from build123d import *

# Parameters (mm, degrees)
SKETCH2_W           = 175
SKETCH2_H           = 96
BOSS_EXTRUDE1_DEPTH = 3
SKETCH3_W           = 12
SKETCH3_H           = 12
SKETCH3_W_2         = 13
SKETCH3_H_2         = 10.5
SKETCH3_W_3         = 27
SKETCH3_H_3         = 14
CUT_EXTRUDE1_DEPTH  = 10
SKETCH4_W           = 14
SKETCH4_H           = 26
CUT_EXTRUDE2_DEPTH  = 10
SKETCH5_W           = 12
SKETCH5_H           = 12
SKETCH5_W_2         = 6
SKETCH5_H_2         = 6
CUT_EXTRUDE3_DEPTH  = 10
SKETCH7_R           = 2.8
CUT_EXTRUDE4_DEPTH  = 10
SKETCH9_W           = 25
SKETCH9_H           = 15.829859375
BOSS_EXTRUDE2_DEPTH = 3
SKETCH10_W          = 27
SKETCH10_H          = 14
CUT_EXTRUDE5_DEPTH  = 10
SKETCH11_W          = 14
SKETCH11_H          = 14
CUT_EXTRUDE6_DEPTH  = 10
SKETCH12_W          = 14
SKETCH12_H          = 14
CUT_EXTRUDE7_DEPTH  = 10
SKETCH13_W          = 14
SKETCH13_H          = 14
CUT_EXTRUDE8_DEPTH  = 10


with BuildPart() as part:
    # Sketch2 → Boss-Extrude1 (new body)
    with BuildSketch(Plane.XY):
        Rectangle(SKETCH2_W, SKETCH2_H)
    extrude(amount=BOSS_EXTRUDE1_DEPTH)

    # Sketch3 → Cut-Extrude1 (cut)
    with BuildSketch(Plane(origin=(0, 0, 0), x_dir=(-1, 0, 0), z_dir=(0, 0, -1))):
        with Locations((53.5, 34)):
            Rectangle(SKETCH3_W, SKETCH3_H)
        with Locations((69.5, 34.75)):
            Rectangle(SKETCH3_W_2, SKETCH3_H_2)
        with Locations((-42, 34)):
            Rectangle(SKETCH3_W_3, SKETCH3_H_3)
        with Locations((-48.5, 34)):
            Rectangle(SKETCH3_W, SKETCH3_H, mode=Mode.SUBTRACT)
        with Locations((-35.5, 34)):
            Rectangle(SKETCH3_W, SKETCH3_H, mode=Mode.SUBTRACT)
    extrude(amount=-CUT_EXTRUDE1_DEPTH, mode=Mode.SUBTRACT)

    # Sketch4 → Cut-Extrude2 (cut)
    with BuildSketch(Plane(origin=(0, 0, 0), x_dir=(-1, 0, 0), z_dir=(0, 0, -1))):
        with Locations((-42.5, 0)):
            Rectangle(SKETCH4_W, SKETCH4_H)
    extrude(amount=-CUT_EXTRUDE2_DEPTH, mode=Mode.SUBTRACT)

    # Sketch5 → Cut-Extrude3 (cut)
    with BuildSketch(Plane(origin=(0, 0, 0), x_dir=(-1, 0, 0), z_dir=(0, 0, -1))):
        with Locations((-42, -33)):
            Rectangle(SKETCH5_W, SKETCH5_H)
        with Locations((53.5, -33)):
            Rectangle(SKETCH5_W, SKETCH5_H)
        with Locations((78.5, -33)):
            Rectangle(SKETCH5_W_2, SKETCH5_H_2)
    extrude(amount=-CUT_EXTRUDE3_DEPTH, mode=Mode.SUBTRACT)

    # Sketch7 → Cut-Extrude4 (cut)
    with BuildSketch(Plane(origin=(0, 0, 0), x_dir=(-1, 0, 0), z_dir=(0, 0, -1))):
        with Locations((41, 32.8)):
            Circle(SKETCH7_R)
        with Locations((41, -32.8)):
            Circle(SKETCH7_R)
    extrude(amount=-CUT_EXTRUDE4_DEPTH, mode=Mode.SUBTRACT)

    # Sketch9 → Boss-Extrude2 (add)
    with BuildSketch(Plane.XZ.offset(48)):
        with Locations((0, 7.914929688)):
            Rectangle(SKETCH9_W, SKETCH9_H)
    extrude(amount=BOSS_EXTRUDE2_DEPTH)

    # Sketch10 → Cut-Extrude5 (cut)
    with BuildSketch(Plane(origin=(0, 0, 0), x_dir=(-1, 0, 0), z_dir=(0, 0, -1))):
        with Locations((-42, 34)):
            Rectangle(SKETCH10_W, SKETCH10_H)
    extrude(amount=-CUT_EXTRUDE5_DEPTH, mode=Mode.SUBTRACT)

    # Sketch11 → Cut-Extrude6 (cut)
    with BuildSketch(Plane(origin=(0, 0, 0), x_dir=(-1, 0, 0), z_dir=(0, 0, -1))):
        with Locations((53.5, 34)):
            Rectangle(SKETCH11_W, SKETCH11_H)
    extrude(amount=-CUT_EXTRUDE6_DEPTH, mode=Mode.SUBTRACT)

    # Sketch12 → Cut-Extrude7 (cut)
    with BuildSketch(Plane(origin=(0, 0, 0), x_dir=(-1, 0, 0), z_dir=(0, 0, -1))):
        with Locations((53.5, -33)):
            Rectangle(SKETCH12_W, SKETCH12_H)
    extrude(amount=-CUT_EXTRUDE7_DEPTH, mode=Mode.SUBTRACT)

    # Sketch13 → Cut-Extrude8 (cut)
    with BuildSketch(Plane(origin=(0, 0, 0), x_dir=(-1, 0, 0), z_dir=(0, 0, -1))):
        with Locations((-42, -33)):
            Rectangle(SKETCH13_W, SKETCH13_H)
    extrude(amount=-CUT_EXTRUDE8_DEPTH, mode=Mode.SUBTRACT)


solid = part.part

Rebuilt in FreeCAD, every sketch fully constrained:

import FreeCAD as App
import Part
import Sketcher
Q = App.Units.Quantity

doc = App.newDocument("Part")
params = doc.addObject("Spreadsheet::Sheet", "Params")
for row, (alias, value) in enumerate([
    ("sketch1_width", "175 mm"),
    ("sketch1_height", "96 mm"),
    ("pad1_length", "3 mm"),
    ("sketch2_width", "12 mm"),
    ("sketch2_width2", "13 mm"),
    ("sketch2_width3", "27 mm"),
    ("sketch2_height", "14 mm"),
    ("sketch2_height2", "10.5 mm"),
    ("pocket1_length", "10 mm"),
    ("sketch3_width", "14 mm"),
    ("sketch3_height", "26 mm"),
    ("pocket2_length", "10 mm"),
    ("sketch4_width", "12 mm"),
    ("sketch4_width2", "6 mm"),
    ("pocket3_length", "10 mm"),
    ("sketch5_diameter", "5.6 mm"),
    ("pocket4_length", "10 mm"),
    ("sketch6_width", "25 mm"),
    ("pad2_length", "3 mm"),
    ("sketch7_width", "27 mm"),
    ("sketch7_height", "14 mm"),
    ("pocket5_length", "10 mm"),
    ("sketch8_width", "14 mm"),
    ("pocket6_length", "10 mm"),
    ("sketch9_width", "14 mm"),
    ("pocket7_length", "10 mm"),
    ("sketch10_width", "14 mm"),
    ("pocket8_length", "10 mm"),
], start=1):
    params.set(f"A{row}", alias)
    params.set(f"B{row}", "=" + value)
    params.setAlias(f"B{row}", alias)

body = doc.addObject("PartDesign::Body", "Body")
body.AllowCompound = True

# Sketch on XY plane
sketch1 = body.newObject("Sketcher::SketchObject", "Sketch")
sketch1.AttachmentSupport = (doc.getObject("XY_Plane"), [""])
sketch1.MapMode = "FlatFace"
sketch1.addGeometry(Part.LineSegment(App.Vector(-88, 48, 0), App.Vector(-88, -48, 0)), False)
sketch1.addGeometry(Part.LineSegment(App.Vector(-88, -48, 0), App.Vector(88, -48, 0)), False)
sketch1.addGeometry(Part.LineSegment(App.Vector(88, -48, 0), App.Vector(88, 48, 0)), False)
sketch1.addGeometry(Part.LineSegment(App.Vector(88, 48, 0), App.Vector(-88, 48, 0)), False)
sketch1.addConstraint(Sketcher.Constraint("Coincident", 0, 2, 1, 1))
sketch1.addConstraint(Sketcher.Constraint("Coincident", 1, 2, 2, 1))
sketch1.addConstraint(Sketcher.Constraint("Coincident", 2, 2, 3, 1))
sketch1.addConstraint(Sketcher.Constraint("Coincident", 3, 2, 0, 1))
sketch1.addConstraint(Sketcher.Constraint("Vertical", 0))
sketch1.addConstraint(Sketcher.Constraint("Horizontal", 1))
sketch1.addConstraint(Sketcher.Constraint("Vertical", 2))
sketch1.addConstraint(Sketcher.Constraint("Horizontal", 3))
sketch1.addConstraint(Sketcher.Constraint("Symmetric", 0, 2, 2, 2, -1, 1))
sketch1.addConstraint(Sketcher.Constraint("DistanceX", 1, 1, 1, 2, Q("175 mm")))
sketch1.addConstraint(Sketcher.Constraint("DistanceY", 0, 2, 0, 1, Q("96 mm")))
sketch1.setExpression("Constraints[9]", "Params.sketch1_width")
sketch1.setExpression("Constraints[10]", "Params.sketch1_height")
pad1 = body.newObject("PartDesign::Pad", "Pad")
pad1.Profile = sketch1
pad1.setExpression("Length", "Params.pad1_length")

# Sketch on XY plane
sketch2 = body.newObject("Sketcher::SketchObject", "Sketch001")
sketch2.AttachmentSupport = (doc.getObject("XY_Plane"), [""])
sketch2.MapMode = "FlatFace"
sketch2.addGeometry(Part.LineSegment(App.Vector(-48, 40, 0), App.Vector(-48, 28, 0)), False)
sketch2.addGeometry(Part.LineSegment(App.Vector(-48, 28, 0), App.Vector(-60, 28, 0)), False)
sketch2.addGeometry(Part.LineSegment(App.Vector(-60, 28, 0), App.Vector(-60, 40, 0)), False)
sketch2.addGeometry(Part.LineSegment(App.Vector(-60, 40, 0), App.Vector(-48, 40, 0)), False)
sketch2.addGeometry(Part.LineSegment(App.Vector(-63, 40, 0), App.Vector(-63, 30, 0)), False)
sketch2.addGeometry(Part.LineSegment(App.Vector(-63, 30, 0), App.Vector(-76, 30, 0)), False)
sketch2.addGeometry(Part.LineSegment(App.Vector(-76, 30, 0), App.Vector(-76, 40, 0)), False)
sketch2.addGeometry(Part.LineSegment(App.Vector(-76, 40, 0), App.Vector(-63, 40, 0)), False)
sketch2.addGeometry(Part.LineSegment(App.Vector(56, 41, 0), App.Vector(56, 27, 0)), False)
sketch2.addGeometry(Part.LineSegment(App.Vector(56, 27, 0), App.Vector(28, 27, 0)), False)
sketch2.addGeometry(Part.LineSegment(App.Vector(28, 27, 0), App.Vector(28, 41, 0)), False)
sketch2.addGeometry(Part.LineSegment(App.Vector(28, 41, 0), App.Vector(56, 41, 0)), False)
sketch2.addGeometry(Part.LineSegment(App.Vector(42, 28, 0), App.Vector(54, 28, 0)), False)
sketch2.addGeometry(Part.LineSegment(App.Vector(54, 28, 0), App.Vector(54, 40, 0)), False)
sketch2.addGeometry(Part.LineSegment(App.Vector(54, 40, 0), App.Vector(42, 40, 0)), False)
sketch2.addGeometry(Part.LineSegment(App.Vector(42, 40, 0), App.Vector(42, 28, 0)), False)
sketch2.addGeometry(Part.LineSegment(App.Vector(30, 28, 0), App.Vector(42, 28, 0)), False)
sketch2.addGeometry(Part.LineSegment(App.Vector(42, 28, 0), App.Vector(42, 40, 0)), False)
sketch2.addGeometry(Part.LineSegment(App.Vector(42, 40, 0), App.Vector(30, 40, 0)), False)
sketch2.addGeometry(Part.LineSegment(App.Vector(30, 40, 0), App.Vector(30, 28, 0)), False)
sketch2.addConstraint(Sketcher.Constraint("Coincident", 0, 2, 1, 1))
sketch2.addConstraint(Sketcher.Constraint("Coincident", 1, 2, 2, 1))
sketch2.addConstraint(Sketcher.Constraint("Coincident", 2, 2, 3, 1))
sketch2.addConstraint(Sketcher.Constraint("Coincident", 3, 2, 0, 1))
sketch2.addConstraint(Sketcher.Constraint("Coincident", 4, 2, 5, 1))
sketch2.addConstraint(Sketcher.Constraint("Coincident", 5, 2, 6, 1))
sketch2.addConstraint(Sketcher.Constraint("Coincident", 6, 2, 7, 1))
sketch2.addConstraint(Sketcher.Constraint("Coincident", 7, 2, 4, 1))
sketch2.addConstraint(Sketcher.Constraint("Coincident", 8, 2, 9, 1))
sketch2.addConstraint(Sketcher.Constraint("Coincident", 9, 2, 10, 1))
sketch2.addConstraint(Sketcher.Constraint("Coincident", 10, 2, 11, 1))
sketch2.addConstraint(Sketcher.Constraint("Coincident", 11, 2, 8, 1))
sketch2.addConstraint(Sketcher.Constraint("Coincident", 12, 2, 13, 1))
sketch2.addConstraint(Sketcher.Constraint("Coincident", 13, 2, 14, 1))
sketch2.addConstraint(Sketcher.Constraint("Coincident", 14, 2, 15, 1))
sketch2.addConstraint(Sketcher.Constraint("Coincident", 15, 2, 12, 1))
sketch2.addConstraint(Sketcher.Constraint("Coincident", 16, 2, 17, 1))
sketch2.addConstraint(Sketcher.Constraint("Coincident", 17, 2, 18, 1))
sketch2.addConstraint(Sketcher.Constraint("Coincident", 18, 2, 19, 1))
sketch2.addConstraint(Sketcher.Constraint("Coincident", 19, 2, 16, 1))
sketch2.addConstraint(Sketcher.Constraint("Vertical", 0))
sketch2.addConstraint(Sketcher.Constraint("Horizontal", 1))
sketch2.addConstraint(Sketcher.Constraint("Vertical", 2))
sketch2.addConstraint(Sketcher.Constraint("Horizontal", 3))
sketch2.addConstraint(Sketcher.Constraint("Vertical", 4))
sketch2.addConstraint(Sketcher.Constraint("Horizontal", 5))
sketch2.addConstraint(Sketcher.Constraint("Vertical", 6))
sketch2.addConstraint(Sketcher.Constraint("Horizontal", 7))
sketch2.addConstraint(Sketcher.Constraint("Vertical", 8))
sketch2.addConstraint(Sketcher.Constraint("Horizontal", 9))
sketch2.addConstraint(Sketcher.Constraint("Vertical", 10))
sketch2.addConstraint(Sketcher.Constraint("Horizontal", 11))
sketch2.addConstraint(Sketcher.Constraint("Horizontal", 12))
sketch2.addConstraint(Sketcher.Constraint("Vertical", 13))
sketch2.addConstraint(Sketcher.Constraint("Horizontal", 14))
sketch2.addConstraint(Sketcher.Constraint("Vertical", 15))
sketch2.addConstraint(Sketcher.Constraint("Horizontal", 16))
sketch2.addConstraint(Sketcher.Constraint("Vertical", 17))
sketch2.addConstraint(Sketcher.Constraint("Horizontal", 18))
sketch2.addConstraint(Sketcher.Constraint("Vertical", 19))
sketch2.addConstraint(Sketcher.Constraint("Horizontal", 3, 2, 6, 2))
sketch2.addConstraint(Sketcher.Constraint("Horizontal", 1, 2, 12, 2))
sketch2.addConstraint(Sketcher.Constraint("Horizontal", 7, 2, 13, 2))
sketch2.addConstraint(Sketcher.Constraint("Horizontal", 15, 2, 16, 2))
sketch2.addConstraint(Sketcher.Constraint("Horizontal", 14, 2, 17, 2))
sketch2.addConstraint(Sketcher.Constraint("Equal", 3, 12))
sketch2.addConstraint(Sketcher.Constraint("Equal", 14, 16))
sketch2.addConstraint(Sketcher.Constraint("Equal", 18, 0))
sketch2.addConstraint(Sketcher.Constraint("DistanceX", 1, 2, 1, 1, Q("12 mm")))
sketch2.addConstraint(Sketcher.Constraint("DistanceX", 5, 2, 5, 1, Q("13 mm")))
sketch2.addConstraint(Sketcher.Constraint("DistanceX", 9, 2, 9, 1, Q("27 mm")))
sketch2.addConstraint(Sketcher.Constraint("DistanceY", 8, 2, 8, 1, Q("14 mm")))
sketch2.addConstraint(Sketcher.Constraint("DistanceY", 4, 2, 4, 1, Q("10.5 mm")))
sketch2.addConstraint(Sketcher.Constraint("DistanceY", -1, 1, 0, 2, Q("28 mm")))
sketch2.addConstraint(Sketcher.Constraint("DistanceX", 4, 2, -1, 1, Q("63 mm")))
sketch2.addConstraint(Sketcher.Constraint("DistanceY", -1, 1, 8, 2, Q("27 mm")))
sketch2.addConstraint(Sketcher.Constraint("DistanceX", 0, 2, 8, 2, Q("103 mm")))
sketch2.addConstraint(Sketcher.Constraint("DistanceX", 12, 2, 8, 2, Q("1 mm")))
sketch2.addConstraint(Sketcher.Constraint("DistanceX", 16, 2, 15, 2, Q("1 mm")))
sketch2.addConstraint(Sketcher.Constraint("DistanceX", 0, 2, -1, 1, Q("47.5 mm")))
sketch2.setExpression("Constraints[48]", "Params.sketch2_width")
sketch2.setExpression("Constraints[49]", "Params.sketch2_width2")
sketch2.setExpression("Constraints[50]", "Params.sketch2_width3")
sketch2.setExpression("Constraints[51]", "Params.sketch2_height")
sketch2.setExpression("Constraints[52]", "Params.sketch2_height2")
pocket1 = body.newObject("PartDesign::Pocket", "Pocket")
pocket1.Profile = sketch2
pocket1.setExpression("Length", "Params.pocket1_length")
pocket1.Reversed = True

# Sketch on XY plane
sketch3 = body.newObject("Sketcher::SketchObject", "Sketch002")
sketch3.AttachmentSupport = (doc.getObject("XY_Plane"), [""])
sketch3.MapMode = "FlatFace"
sketch3.addGeometry(Part.LineSegment(App.Vector(50, 13, 0), App.Vector(50, -13, 0)), False)
sketch3.addGeometry(Part.LineSegment(App.Vector(50, -13, 0), App.Vector(36, -13, 0)), False)
sketch3.addGeometry(Part.LineSegment(App.Vector(36, -13, 0), App.Vector(36, 13, 0)), False)
sketch3.addGeometry(Part.LineSegment(App.Vector(36, 13, 0), App.Vector(50, 13, 0)), False)
sketch3.addConstraint(Sketcher.Constraint("Coincident", 0, 2, 1, 1))
sketch3.addConstraint(Sketcher.Constraint("Coincident", 1, 2, 2, 1))
sketch3.addConstraint(Sketcher.Constraint("Coincident", 2, 2, 3, 1))
sketch3.addConstraint(Sketcher.Constraint("Coincident", 3, 2, 0, 1))
sketch3.addConstraint(Sketcher.Constraint("Vertical", 0))
sketch3.addConstraint(Sketcher.Constraint("Horizontal", 1))
sketch3.addConstraint(Sketcher.Constraint("Vertical", 2))
sketch3.addConstraint(Sketcher.Constraint("Horizontal", 3))
sketch3.addConstraint(Sketcher.Constraint("DistanceX", 1, 2, 1, 1, Q("14 mm")))
sketch3.addConstraint(Sketcher.Constraint("DistanceY", 0, 2, 0, 1, Q("26 mm")))
sketch3.addConstraint(Sketcher.Constraint("DistanceY", 0, 2, -1, 1, Q("13 mm")))
sketch3.addConstraint(Sketcher.Constraint("DistanceX", -1, 1, 0, 2, Q("49.5 mm")))
sketch3.setExpression("Constraints[8]", "Params.sketch3_width")
sketch3.setExpression("Constraints[9]", "Params.sketch3_height")
pocket2 = body.newObject("PartDesign::Pocket", "Pocket001")
pocket2.Profile = sketch3
pocket2.setExpression("Length", "Params.pocket2_length")
pocket2.Reversed = True

# Sketch on XY plane
sketch4 = body.newObject("Sketcher::SketchObject", "Sketch003")
sketch4.AttachmentSupport = (doc.getObject("XY_Plane"), [""])
sketch4.MapMode = "FlatFace"
sketch4.addGeometry(Part.LineSegment(App.Vector(48, -27, 0), App.Vector(48, -39, 0)), False)
sketch4.addGeometry(Part.LineSegment(App.Vector(48, -39, 0), App.Vector(36, -39, 0)), False)
sketch4.addGeometry(Part.LineSegment(App.Vector(36, -39, 0), App.Vector(36, -27, 0)), False)
sketch4.addGeometry(Part.LineSegment(App.Vector(36, -27, 0), App.Vector(48, -27, 0)), False)
sketch4.addGeometry(Part.LineSegment(App.Vector(-48, -27, 0), App.Vector(-48, -39, 0)), False)
sketch4.addGeometry(Part.LineSegment(App.Vector(-48, -39, 0), App.Vector(-60, -39, 0)), False)
sketch4.addGeometry(Part.LineSegment(App.Vector(-60, -39, 0), App.Vector(-60, -27, 0)), False)
sketch4.addGeometry(Part.LineSegment(App.Vector(-60, -27, 0), App.Vector(-48, -27, 0)), False)
sketch4.addGeometry(Part.LineSegment(App.Vector(-76, -30, 0), App.Vector(-76, -36, 0)), False)
sketch4.addGeometry(Part.LineSegment(App.Vector(-76, -36, 0), App.Vector(-82, -36, 0)), False)
sketch4.addGeometry(Part.LineSegment(App.Vector(-82, -36, 0), App.Vector(-82, -30, 0)), False)
sketch4.addGeometry(Part.LineSegment(App.Vector(-82, -30, 0), App.Vector(-76, -30, 0)), False)
sketch4.addConstraint(Sketcher.Constraint("Coincident", 0, 2, 1, 1))
sketch4.addConstraint(Sketcher.Constraint("Coincident", 1, 2, 2, 1))
sketch4.addConstraint(Sketcher.Constraint("Coincident", 2, 2, 3, 1))
sketch4.addConstraint(Sketcher.Constraint("Coincident", 3, 2, 0, 1))
sketch4.addConstraint(Sketcher.Constraint("Coincident", 4, 2, 5, 1))
sketch4.addConstraint(Sketcher.Constraint("Coincident", 5, 2, 6, 1))
sketch4.addConstraint(Sketcher.Constraint("Coincident", 6, 2, 7, 1))
sketch4.addConstraint(Sketcher.Constraint("Coincident", 7, 2, 4, 1))
sketch4.addConstraint(Sketcher.Constraint("Coincident", 8, 2, 9, 1))
sketch4.addConstraint(Sketcher.Constraint("Coincident", 9, 2, 10, 1))
sketch4.addConstraint(Sketcher.Constraint("Coincident", 10, 2, 11, 1))
sketch4.addConstraint(Sketcher.Constraint("Coincident", 11, 2, 8, 1))
sketch4.addConstraint(Sketcher.Constraint("Vertical", 0))
sketch4.addConstraint(Sketcher.Constraint("Horizontal", 1))
sketch4.addConstraint(Sketcher.Constraint("Vertical", 2))
sketch4.addConstraint(Sketcher.Constraint("Horizontal", 3))
sketch4.addConstraint(Sketcher.Constraint("Vertical", 4))
sketch4.addConstraint(Sketcher.Constraint("Horizontal", 5))
sketch4.addConstraint(Sketcher.Constraint("Vertical", 6))
sketch4.addConstraint(Sketcher.Constraint("Horizontal", 7))
sketch4.addConstraint(Sketcher.Constraint("Vertical", 8))
sketch4.addConstraint(Sketcher.Constraint("Horizontal", 9))
sketch4.addConstraint(Sketcher.Constraint("Vertical", 10))
sketch4.addConstraint(Sketcher.Constraint("Horizontal", 11))
sketch4.addConstraint(Sketcher.Constraint("Horizontal", 1, 2, 4, 2))
sketch4.addConstraint(Sketcher.Constraint("Horizontal", 3, 2, 6, 2))
sketch4.addConstraint(Sketcher.Constraint("Equal", 3, 5))
sketch4.addConstraint(Sketcher.Constraint("Equal", 7, 0))
sketch4.addConstraint(Sketcher.Constraint("Equal", 11, 8))
sketch4.addConstraint(Sketcher.Constraint("DistanceX", 1, 2, 1, 1, Q("12 mm")))
sketch4.addConstraint(Sketcher.Constraint("DistanceX", 9, 2, 9, 1, Q("6 mm")))
sketch4.addConstraint(Sketcher.Constraint("DistanceX", -1, 1, 0, 2, Q("48 mm")))
sketch4.addConstraint(Sketcher.Constraint("DistanceY", 0, 2, -1, 1, Q("39 mm")))
sketch4.addConstraint(Sketcher.Constraint("DistanceY", 8, 2, -1, 1, Q("36 mm")))
sketch4.addConstraint(Sketcher.Constraint("DistanceX", 8, 2, 5, 2, Q("16 mm")))
sketch4.addConstraint(Sketcher.Constraint("DistanceX", 4, 2, -1, 1, Q("47.5 mm")))
sketch4.setExpression("Constraints[29]", "Params.sketch4_width")
sketch4.setExpression("Constraints[30]", "Params.sketch4_width2")
pocket3 = body.newObject("PartDesign::Pocket", "Pocket002")
pocket3.Profile = sketch4
pocket3.setExpression("Length", "Params.pocket3_length")
pocket3.Reversed = True

# Sketch on XY plane
sketch5 = body.newObject("Sketcher::SketchObject", "Sketch004")
sketch5.AttachmentSupport = (doc.getObject("XY_Plane"), [""])
sketch5.MapMode = "FlatFace"
sketch5.addGeometry(Part.Circle(App.Vector(-41, 32.8, 0), App.Vector(0, 0, 1), 2.8), False)
sketch5.addGeometry(Part.Circle(App.Vector(-41, -32.8, 0), App.Vector(0, 0, 1), 2.8), False)
sketch5.addConstraint(Sketcher.Constraint("Equal", 0, 1))
sketch5.addConstraint(Sketcher.Constraint("Symmetric", 0, 3, 1, 3, -1))
sketch5.addConstraint(Sketcher.Constraint("Diameter", 0, Q("5.6 mm")))
sketch5.addConstraint(Sketcher.Constraint("DistanceX", 0, 3, -1, 1, Q("41 mm")))
sketch5.addConstraint(Sketcher.Constraint("DistanceY", -1, 1, 0, 3, Q("32.8 mm")))
sketch5.setExpression("Constraints[2]", "Params.sketch5_diameter")
pocket4 = body.newObject("PartDesign::Pocket", "Pocket003")
pocket4.Profile = sketch5
pocket4.setExpression("Length", "Params.pocket4_length")
pocket4.Reversed = True

# Sketch on XZ plane
sketch6 = body.newObject("Sketcher::SketchObject", "Sketch005")
sketch6.AttachmentSupport = (doc.getObject("XZ_Plane"), [""])
sketch6.MapMode = "FlatFace"
sketch6.AttachmentOffset = App.Placement(App.Vector(0, 0, 48), App.Rotation())
sketch6.addGeometry(Part.LineSegment(App.Vector(-12, 16, 0), App.Vector(-12, 0, 0)), False)
sketch6.addGeometry(Part.LineSegment(App.Vector(-12, 0, 0), App.Vector(12, 0, 0)), False)
sketch6.addGeometry(Part.LineSegment(App.Vector(12, 0, 0), App.Vector(12, 16, 0)), False)
sketch6.addGeometry(Part.LineSegment(App.Vector(12, 16, 0), App.Vector(-12, 16, 0)), False)
sketch6.addConstraint(Sketcher.Constraint("Coincident", 0, 2, 1, 1))
sketch6.addConstraint(Sketcher.Constraint("Coincident", 1, 2, 2, 1))
sketch6.addConstraint(Sketcher.Constraint("Coincident", 2, 2, 3, 1))
sketch6.addConstraint(Sketcher.Constraint("Coincident", 3, 2, 0, 1))
sketch6.addConstraint(Sketcher.Constraint("Vertical", 0))
sketch6.addConstraint(Sketcher.Constraint("Horizontal", 1))
sketch6.addConstraint(Sketcher.Constraint("Vertical", 2))
sketch6.addConstraint(Sketcher.Constraint("Horizontal", 3))
sketch6.addConstraint(Sketcher.Constraint("Symmetric", 0, 2, 1, 2, -1, 1))
sketch6.addConstraint(Sketcher.Constraint("DistanceX", 1, 1, 1, 2, Q("25 mm")))
sketch6.addConstraint(Sketcher.Constraint("DistanceY", 0, 2, 0, 1, Q("15.829859 mm")))
sketch6.setExpression("Constraints[9]", "Params.sketch6_width")
pad2 = body.newObject("PartDesign::Pad", "Pad001")
pad2.Profile = sketch6
pad2.setExpression("Length", "Params.pad2_length")

# Sketch on XY plane
sketch7 = body.newObject("Sketcher::SketchObject", "Sketch006")
sketch7.AttachmentSupport = (doc.getObject("XY_Plane"), [""])
sketch7.MapMode = "FlatFace"
sketch7.addGeometry(Part.LineSegment(App.Vector(56, 41, 0), App.Vector(56, 27, 0)), False)
sketch7.addGeometry(Part.LineSegment(App.Vector(56, 27, 0), App.Vector(28, 27, 0)), False)
sketch7.addGeometry(Part.LineSegment(App.Vector(28, 27, 0), App.Vector(28, 41, 0)), False)
sketch7.addGeometry(Part.LineSegment(App.Vector(28, 41, 0), App.Vector(56, 41, 0)), False)
sketch7.addConstraint(Sketcher.Constraint("Coincident", 0, 2, 1, 1))
sketch7.addConstraint(Sketcher.Constraint("Coincident", 1, 2, 2, 1))
sketch7.addConstraint(Sketcher.Constraint("Coincident", 2, 2, 3, 1))
sketch7.addConstraint(Sketcher.Constraint("Coincident", 3, 2, 0, 1))
sketch7.addConstraint(Sketcher.Constraint("Vertical", 0))
sketch7.addConstraint(Sketcher.Constraint("Horizontal", 1))
sketch7.addConstraint(Sketcher.Constraint("Vertical", 2))
sketch7.addConstraint(Sketcher.Constraint("Horizontal", 3))
sketch7.addConstraint(Sketcher.Constraint("DistanceX", 1, 2, 1, 1, Q("27 mm")))
sketch7.addConstraint(Sketcher.Constraint("DistanceY", 0, 2, 0, 1, Q("14 mm")))
sketch7.addConstraint(Sketcher.Constraint("DistanceY", -1, 1, 0, 2, Q("27 mm")))
sketch7.addConstraint(Sketcher.Constraint("DistanceX", -1, 1, 0, 2, Q("55.5 mm")))
sketch7.setExpression("Constraints[8]", "Params.sketch7_width")
sketch7.setExpression("Constraints[9]", "Params.sketch7_height")
pocket5 = body.newObject("PartDesign::Pocket", "Pocket004")
pocket5.Profile = sketch7
pocket5.setExpression("Length", "Params.pocket5_length")
pocket5.Reversed = True

# Sketch on XY plane
sketch8 = body.newObject("Sketcher::SketchObject", "Sketch007")
sketch8.AttachmentSupport = (doc.getObject("XY_Plane"), [""])
sketch8.MapMode = "FlatFace"
sketch8.addGeometry(Part.LineSegment(App.Vector(-46, 41, 0), App.Vector(-46, 27, 0)), False)
sketch8.addGeometry(Part.LineSegment(App.Vector(-46, 27, 0), App.Vector(-60, 27, 0)), False)
sketch8.addGeometry(Part.LineSegment(App.Vector(-60, 27, 0), App.Vector(-60, 41, 0)), False)
sketch8.addGeometry(Part.LineSegment(App.Vector(-60, 41, 0), App.Vector(-46, 41, 0)), False)
sketch8.addConstraint(Sketcher.Constraint("Coincident", 0, 2, 1, 1))
sketch8.addConstraint(Sketcher.Constraint("Coincident", 1, 2, 2, 1))
sketch8.addConstraint(Sketcher.Constraint("Coincident", 2, 2, 3, 1))
sketch8.addConstraint(Sketcher.Constraint("Coincident", 3, 2, 0, 1))
sketch8.addConstraint(Sketcher.Constraint("Vertical", 0))
sketch8.addConstraint(Sketcher.Constraint("Horizontal", 1))
sketch8.addConstraint(Sketcher.Constraint("Vertical", 2))
sketch8.addConstraint(Sketcher.Constraint("Horizontal", 3))
sketch8.addConstraint(Sketcher.Constraint("Equal", 3, 0))
sketch8.addConstraint(Sketcher.Constraint("DistanceX", 1, 2, 1, 1, Q("14 mm")))
sketch8.addConstraint(Sketcher.Constraint("DistanceY", -1, 1, 0, 2, Q("27 mm")))
sketch8.addConstraint(Sketcher.Constraint("DistanceX", 0, 2, -1, 1, Q("46.5 mm")))
sketch8.setExpression("Constraints[9]", "Params.sketch8_width")
pocket6 = body.newObject("PartDesign::Pocket", "Pocket005")
pocket6.Profile = sketch8
pocket6.setExpression("Length", "Params.pocket6_length")
pocket6.Reversed = True

# Sketch on XY plane
sketch9 = body.newObject("Sketcher::SketchObject", "Sketch008")
sketch9.AttachmentSupport = (doc.getObject("XY_Plane"), [""])
sketch9.MapMode = "FlatFace"
sketch9.addGeometry(Part.LineSegment(App.Vector(-46, -26, 0), App.Vector(-46, -40, 0)), False)
sketch9.addGeometry(Part.LineSegment(App.Vector(-46, -40, 0), App.Vector(-60, -40, 0)), False)
sketch9.addGeometry(Part.LineSegment(App.Vector(-60, -40, 0), App.Vector(-60, -26, 0)), False)
sketch9.addGeometry(Part.LineSegment(App.Vector(-60, -26, 0), App.Vector(-46, -26, 0)), False)
sketch9.addConstraint(Sketcher.Constraint("Coincident", 0, 2, 1, 1))
sketch9.addConstraint(Sketcher.Constraint("Coincident", 1, 2, 2, 1))
sketch9.addConstraint(Sketcher.Constraint("Coincident", 2, 2, 3, 1))
sketch9.addConstraint(Sketcher.Constraint("Coincident", 3, 2, 0, 1))
sketch9.addConstraint(Sketcher.Constraint("Vertical", 0))
sketch9.addConstraint(Sketcher.Constraint("Horizontal", 1))
sketch9.addConstraint(Sketcher.Constraint("Vertical", 2))
sketch9.addConstraint(Sketcher.Constraint("Horizontal", 3))
sketch9.addConstraint(Sketcher.Constraint("Equal", 3, 0))
sketch9.addConstraint(Sketcher.Constraint("DistanceX", 1, 2, 1, 1, Q("14 mm")))
sketch9.addConstraint(Sketcher.Constraint("DistanceY", 0, 2, -1, 1, Q("40 mm")))
sketch9.addConstraint(Sketcher.Constraint("DistanceX", 0, 2, -1, 1, Q("46.5 mm")))
sketch9.setExpression("Constraints[9]", "Params.sketch9_width")
pocket7 = body.newObject("PartDesign::Pocket", "Pocket006")
pocket7.Profile = sketch9
pocket7.setExpression("Length", "Params.pocket7_length")
pocket7.Reversed = True

# Sketch on XY plane
sketch10 = body.newObject("Sketcher::SketchObject", "Sketch009")
sketch10.AttachmentSupport = (doc.getObject("XY_Plane"), [""])
sketch10.MapMode = "FlatFace"
sketch10.addGeometry(Part.LineSegment(App.Vector(49, -26, 0), App.Vector(49, -40, 0)), False)
sketch10.addGeometry(Part.LineSegment(App.Vector(49, -40, 0), App.Vector(35, -40, 0)), False)
sketch10.addGeometry(Part.LineSegment(App.Vector(35, -40, 0), App.Vector(35, -26, 0)), False)
sketch10.addGeometry(Part.LineSegment(App.Vector(35, -26, 0), App.Vector(49, -26, 0)), False)
sketch10.addConstraint(Sketcher.Constraint("Coincident", 0, 2, 1, 1))
sketch10.addConstraint(Sketcher.Constraint("Coincident", 1, 2, 2, 1))
sketch10.addConstraint(Sketcher.Constraint("Coincident", 2, 2, 3, 1))
sketch10.addConstraint(Sketcher.Constraint("Coincident", 3, 2, 0, 1))
sketch10.addConstraint(Sketcher.Constraint("Vertical", 0))
sketch10.addConstraint(Sketcher.Constraint("Horizontal", 1))
sketch10.addConstraint(Sketcher.Constraint("Vertical", 2))
sketch10.addConstraint(Sketcher.Constraint("Horizontal", 3))
sketch10.addConstraint(Sketcher.Constraint("Equal", 3, 0))
sketch10.addConstraint(Sketcher.Constraint("DistanceX", 1, 2, 1, 1, Q("14 mm")))
sketch10.addConstraint(Sketcher.Constraint("DistanceX", -1, 1, 0, 2, Q("49 mm")))
sketch10.addConstraint(Sketcher.Constraint("DistanceY", 0, 2, -1, 1, Q("40 mm")))
sketch10.setExpression("Constraints[9]", "Params.sketch10_width")
pocket8 = body.newObject("PartDesign::Pocket", "Pocket007")
pocket8.Profile = sketch10
pocket8.setExpression("Length", "Params.pocket8_length")
pocket8.Reversed = True

doc.recompute()
